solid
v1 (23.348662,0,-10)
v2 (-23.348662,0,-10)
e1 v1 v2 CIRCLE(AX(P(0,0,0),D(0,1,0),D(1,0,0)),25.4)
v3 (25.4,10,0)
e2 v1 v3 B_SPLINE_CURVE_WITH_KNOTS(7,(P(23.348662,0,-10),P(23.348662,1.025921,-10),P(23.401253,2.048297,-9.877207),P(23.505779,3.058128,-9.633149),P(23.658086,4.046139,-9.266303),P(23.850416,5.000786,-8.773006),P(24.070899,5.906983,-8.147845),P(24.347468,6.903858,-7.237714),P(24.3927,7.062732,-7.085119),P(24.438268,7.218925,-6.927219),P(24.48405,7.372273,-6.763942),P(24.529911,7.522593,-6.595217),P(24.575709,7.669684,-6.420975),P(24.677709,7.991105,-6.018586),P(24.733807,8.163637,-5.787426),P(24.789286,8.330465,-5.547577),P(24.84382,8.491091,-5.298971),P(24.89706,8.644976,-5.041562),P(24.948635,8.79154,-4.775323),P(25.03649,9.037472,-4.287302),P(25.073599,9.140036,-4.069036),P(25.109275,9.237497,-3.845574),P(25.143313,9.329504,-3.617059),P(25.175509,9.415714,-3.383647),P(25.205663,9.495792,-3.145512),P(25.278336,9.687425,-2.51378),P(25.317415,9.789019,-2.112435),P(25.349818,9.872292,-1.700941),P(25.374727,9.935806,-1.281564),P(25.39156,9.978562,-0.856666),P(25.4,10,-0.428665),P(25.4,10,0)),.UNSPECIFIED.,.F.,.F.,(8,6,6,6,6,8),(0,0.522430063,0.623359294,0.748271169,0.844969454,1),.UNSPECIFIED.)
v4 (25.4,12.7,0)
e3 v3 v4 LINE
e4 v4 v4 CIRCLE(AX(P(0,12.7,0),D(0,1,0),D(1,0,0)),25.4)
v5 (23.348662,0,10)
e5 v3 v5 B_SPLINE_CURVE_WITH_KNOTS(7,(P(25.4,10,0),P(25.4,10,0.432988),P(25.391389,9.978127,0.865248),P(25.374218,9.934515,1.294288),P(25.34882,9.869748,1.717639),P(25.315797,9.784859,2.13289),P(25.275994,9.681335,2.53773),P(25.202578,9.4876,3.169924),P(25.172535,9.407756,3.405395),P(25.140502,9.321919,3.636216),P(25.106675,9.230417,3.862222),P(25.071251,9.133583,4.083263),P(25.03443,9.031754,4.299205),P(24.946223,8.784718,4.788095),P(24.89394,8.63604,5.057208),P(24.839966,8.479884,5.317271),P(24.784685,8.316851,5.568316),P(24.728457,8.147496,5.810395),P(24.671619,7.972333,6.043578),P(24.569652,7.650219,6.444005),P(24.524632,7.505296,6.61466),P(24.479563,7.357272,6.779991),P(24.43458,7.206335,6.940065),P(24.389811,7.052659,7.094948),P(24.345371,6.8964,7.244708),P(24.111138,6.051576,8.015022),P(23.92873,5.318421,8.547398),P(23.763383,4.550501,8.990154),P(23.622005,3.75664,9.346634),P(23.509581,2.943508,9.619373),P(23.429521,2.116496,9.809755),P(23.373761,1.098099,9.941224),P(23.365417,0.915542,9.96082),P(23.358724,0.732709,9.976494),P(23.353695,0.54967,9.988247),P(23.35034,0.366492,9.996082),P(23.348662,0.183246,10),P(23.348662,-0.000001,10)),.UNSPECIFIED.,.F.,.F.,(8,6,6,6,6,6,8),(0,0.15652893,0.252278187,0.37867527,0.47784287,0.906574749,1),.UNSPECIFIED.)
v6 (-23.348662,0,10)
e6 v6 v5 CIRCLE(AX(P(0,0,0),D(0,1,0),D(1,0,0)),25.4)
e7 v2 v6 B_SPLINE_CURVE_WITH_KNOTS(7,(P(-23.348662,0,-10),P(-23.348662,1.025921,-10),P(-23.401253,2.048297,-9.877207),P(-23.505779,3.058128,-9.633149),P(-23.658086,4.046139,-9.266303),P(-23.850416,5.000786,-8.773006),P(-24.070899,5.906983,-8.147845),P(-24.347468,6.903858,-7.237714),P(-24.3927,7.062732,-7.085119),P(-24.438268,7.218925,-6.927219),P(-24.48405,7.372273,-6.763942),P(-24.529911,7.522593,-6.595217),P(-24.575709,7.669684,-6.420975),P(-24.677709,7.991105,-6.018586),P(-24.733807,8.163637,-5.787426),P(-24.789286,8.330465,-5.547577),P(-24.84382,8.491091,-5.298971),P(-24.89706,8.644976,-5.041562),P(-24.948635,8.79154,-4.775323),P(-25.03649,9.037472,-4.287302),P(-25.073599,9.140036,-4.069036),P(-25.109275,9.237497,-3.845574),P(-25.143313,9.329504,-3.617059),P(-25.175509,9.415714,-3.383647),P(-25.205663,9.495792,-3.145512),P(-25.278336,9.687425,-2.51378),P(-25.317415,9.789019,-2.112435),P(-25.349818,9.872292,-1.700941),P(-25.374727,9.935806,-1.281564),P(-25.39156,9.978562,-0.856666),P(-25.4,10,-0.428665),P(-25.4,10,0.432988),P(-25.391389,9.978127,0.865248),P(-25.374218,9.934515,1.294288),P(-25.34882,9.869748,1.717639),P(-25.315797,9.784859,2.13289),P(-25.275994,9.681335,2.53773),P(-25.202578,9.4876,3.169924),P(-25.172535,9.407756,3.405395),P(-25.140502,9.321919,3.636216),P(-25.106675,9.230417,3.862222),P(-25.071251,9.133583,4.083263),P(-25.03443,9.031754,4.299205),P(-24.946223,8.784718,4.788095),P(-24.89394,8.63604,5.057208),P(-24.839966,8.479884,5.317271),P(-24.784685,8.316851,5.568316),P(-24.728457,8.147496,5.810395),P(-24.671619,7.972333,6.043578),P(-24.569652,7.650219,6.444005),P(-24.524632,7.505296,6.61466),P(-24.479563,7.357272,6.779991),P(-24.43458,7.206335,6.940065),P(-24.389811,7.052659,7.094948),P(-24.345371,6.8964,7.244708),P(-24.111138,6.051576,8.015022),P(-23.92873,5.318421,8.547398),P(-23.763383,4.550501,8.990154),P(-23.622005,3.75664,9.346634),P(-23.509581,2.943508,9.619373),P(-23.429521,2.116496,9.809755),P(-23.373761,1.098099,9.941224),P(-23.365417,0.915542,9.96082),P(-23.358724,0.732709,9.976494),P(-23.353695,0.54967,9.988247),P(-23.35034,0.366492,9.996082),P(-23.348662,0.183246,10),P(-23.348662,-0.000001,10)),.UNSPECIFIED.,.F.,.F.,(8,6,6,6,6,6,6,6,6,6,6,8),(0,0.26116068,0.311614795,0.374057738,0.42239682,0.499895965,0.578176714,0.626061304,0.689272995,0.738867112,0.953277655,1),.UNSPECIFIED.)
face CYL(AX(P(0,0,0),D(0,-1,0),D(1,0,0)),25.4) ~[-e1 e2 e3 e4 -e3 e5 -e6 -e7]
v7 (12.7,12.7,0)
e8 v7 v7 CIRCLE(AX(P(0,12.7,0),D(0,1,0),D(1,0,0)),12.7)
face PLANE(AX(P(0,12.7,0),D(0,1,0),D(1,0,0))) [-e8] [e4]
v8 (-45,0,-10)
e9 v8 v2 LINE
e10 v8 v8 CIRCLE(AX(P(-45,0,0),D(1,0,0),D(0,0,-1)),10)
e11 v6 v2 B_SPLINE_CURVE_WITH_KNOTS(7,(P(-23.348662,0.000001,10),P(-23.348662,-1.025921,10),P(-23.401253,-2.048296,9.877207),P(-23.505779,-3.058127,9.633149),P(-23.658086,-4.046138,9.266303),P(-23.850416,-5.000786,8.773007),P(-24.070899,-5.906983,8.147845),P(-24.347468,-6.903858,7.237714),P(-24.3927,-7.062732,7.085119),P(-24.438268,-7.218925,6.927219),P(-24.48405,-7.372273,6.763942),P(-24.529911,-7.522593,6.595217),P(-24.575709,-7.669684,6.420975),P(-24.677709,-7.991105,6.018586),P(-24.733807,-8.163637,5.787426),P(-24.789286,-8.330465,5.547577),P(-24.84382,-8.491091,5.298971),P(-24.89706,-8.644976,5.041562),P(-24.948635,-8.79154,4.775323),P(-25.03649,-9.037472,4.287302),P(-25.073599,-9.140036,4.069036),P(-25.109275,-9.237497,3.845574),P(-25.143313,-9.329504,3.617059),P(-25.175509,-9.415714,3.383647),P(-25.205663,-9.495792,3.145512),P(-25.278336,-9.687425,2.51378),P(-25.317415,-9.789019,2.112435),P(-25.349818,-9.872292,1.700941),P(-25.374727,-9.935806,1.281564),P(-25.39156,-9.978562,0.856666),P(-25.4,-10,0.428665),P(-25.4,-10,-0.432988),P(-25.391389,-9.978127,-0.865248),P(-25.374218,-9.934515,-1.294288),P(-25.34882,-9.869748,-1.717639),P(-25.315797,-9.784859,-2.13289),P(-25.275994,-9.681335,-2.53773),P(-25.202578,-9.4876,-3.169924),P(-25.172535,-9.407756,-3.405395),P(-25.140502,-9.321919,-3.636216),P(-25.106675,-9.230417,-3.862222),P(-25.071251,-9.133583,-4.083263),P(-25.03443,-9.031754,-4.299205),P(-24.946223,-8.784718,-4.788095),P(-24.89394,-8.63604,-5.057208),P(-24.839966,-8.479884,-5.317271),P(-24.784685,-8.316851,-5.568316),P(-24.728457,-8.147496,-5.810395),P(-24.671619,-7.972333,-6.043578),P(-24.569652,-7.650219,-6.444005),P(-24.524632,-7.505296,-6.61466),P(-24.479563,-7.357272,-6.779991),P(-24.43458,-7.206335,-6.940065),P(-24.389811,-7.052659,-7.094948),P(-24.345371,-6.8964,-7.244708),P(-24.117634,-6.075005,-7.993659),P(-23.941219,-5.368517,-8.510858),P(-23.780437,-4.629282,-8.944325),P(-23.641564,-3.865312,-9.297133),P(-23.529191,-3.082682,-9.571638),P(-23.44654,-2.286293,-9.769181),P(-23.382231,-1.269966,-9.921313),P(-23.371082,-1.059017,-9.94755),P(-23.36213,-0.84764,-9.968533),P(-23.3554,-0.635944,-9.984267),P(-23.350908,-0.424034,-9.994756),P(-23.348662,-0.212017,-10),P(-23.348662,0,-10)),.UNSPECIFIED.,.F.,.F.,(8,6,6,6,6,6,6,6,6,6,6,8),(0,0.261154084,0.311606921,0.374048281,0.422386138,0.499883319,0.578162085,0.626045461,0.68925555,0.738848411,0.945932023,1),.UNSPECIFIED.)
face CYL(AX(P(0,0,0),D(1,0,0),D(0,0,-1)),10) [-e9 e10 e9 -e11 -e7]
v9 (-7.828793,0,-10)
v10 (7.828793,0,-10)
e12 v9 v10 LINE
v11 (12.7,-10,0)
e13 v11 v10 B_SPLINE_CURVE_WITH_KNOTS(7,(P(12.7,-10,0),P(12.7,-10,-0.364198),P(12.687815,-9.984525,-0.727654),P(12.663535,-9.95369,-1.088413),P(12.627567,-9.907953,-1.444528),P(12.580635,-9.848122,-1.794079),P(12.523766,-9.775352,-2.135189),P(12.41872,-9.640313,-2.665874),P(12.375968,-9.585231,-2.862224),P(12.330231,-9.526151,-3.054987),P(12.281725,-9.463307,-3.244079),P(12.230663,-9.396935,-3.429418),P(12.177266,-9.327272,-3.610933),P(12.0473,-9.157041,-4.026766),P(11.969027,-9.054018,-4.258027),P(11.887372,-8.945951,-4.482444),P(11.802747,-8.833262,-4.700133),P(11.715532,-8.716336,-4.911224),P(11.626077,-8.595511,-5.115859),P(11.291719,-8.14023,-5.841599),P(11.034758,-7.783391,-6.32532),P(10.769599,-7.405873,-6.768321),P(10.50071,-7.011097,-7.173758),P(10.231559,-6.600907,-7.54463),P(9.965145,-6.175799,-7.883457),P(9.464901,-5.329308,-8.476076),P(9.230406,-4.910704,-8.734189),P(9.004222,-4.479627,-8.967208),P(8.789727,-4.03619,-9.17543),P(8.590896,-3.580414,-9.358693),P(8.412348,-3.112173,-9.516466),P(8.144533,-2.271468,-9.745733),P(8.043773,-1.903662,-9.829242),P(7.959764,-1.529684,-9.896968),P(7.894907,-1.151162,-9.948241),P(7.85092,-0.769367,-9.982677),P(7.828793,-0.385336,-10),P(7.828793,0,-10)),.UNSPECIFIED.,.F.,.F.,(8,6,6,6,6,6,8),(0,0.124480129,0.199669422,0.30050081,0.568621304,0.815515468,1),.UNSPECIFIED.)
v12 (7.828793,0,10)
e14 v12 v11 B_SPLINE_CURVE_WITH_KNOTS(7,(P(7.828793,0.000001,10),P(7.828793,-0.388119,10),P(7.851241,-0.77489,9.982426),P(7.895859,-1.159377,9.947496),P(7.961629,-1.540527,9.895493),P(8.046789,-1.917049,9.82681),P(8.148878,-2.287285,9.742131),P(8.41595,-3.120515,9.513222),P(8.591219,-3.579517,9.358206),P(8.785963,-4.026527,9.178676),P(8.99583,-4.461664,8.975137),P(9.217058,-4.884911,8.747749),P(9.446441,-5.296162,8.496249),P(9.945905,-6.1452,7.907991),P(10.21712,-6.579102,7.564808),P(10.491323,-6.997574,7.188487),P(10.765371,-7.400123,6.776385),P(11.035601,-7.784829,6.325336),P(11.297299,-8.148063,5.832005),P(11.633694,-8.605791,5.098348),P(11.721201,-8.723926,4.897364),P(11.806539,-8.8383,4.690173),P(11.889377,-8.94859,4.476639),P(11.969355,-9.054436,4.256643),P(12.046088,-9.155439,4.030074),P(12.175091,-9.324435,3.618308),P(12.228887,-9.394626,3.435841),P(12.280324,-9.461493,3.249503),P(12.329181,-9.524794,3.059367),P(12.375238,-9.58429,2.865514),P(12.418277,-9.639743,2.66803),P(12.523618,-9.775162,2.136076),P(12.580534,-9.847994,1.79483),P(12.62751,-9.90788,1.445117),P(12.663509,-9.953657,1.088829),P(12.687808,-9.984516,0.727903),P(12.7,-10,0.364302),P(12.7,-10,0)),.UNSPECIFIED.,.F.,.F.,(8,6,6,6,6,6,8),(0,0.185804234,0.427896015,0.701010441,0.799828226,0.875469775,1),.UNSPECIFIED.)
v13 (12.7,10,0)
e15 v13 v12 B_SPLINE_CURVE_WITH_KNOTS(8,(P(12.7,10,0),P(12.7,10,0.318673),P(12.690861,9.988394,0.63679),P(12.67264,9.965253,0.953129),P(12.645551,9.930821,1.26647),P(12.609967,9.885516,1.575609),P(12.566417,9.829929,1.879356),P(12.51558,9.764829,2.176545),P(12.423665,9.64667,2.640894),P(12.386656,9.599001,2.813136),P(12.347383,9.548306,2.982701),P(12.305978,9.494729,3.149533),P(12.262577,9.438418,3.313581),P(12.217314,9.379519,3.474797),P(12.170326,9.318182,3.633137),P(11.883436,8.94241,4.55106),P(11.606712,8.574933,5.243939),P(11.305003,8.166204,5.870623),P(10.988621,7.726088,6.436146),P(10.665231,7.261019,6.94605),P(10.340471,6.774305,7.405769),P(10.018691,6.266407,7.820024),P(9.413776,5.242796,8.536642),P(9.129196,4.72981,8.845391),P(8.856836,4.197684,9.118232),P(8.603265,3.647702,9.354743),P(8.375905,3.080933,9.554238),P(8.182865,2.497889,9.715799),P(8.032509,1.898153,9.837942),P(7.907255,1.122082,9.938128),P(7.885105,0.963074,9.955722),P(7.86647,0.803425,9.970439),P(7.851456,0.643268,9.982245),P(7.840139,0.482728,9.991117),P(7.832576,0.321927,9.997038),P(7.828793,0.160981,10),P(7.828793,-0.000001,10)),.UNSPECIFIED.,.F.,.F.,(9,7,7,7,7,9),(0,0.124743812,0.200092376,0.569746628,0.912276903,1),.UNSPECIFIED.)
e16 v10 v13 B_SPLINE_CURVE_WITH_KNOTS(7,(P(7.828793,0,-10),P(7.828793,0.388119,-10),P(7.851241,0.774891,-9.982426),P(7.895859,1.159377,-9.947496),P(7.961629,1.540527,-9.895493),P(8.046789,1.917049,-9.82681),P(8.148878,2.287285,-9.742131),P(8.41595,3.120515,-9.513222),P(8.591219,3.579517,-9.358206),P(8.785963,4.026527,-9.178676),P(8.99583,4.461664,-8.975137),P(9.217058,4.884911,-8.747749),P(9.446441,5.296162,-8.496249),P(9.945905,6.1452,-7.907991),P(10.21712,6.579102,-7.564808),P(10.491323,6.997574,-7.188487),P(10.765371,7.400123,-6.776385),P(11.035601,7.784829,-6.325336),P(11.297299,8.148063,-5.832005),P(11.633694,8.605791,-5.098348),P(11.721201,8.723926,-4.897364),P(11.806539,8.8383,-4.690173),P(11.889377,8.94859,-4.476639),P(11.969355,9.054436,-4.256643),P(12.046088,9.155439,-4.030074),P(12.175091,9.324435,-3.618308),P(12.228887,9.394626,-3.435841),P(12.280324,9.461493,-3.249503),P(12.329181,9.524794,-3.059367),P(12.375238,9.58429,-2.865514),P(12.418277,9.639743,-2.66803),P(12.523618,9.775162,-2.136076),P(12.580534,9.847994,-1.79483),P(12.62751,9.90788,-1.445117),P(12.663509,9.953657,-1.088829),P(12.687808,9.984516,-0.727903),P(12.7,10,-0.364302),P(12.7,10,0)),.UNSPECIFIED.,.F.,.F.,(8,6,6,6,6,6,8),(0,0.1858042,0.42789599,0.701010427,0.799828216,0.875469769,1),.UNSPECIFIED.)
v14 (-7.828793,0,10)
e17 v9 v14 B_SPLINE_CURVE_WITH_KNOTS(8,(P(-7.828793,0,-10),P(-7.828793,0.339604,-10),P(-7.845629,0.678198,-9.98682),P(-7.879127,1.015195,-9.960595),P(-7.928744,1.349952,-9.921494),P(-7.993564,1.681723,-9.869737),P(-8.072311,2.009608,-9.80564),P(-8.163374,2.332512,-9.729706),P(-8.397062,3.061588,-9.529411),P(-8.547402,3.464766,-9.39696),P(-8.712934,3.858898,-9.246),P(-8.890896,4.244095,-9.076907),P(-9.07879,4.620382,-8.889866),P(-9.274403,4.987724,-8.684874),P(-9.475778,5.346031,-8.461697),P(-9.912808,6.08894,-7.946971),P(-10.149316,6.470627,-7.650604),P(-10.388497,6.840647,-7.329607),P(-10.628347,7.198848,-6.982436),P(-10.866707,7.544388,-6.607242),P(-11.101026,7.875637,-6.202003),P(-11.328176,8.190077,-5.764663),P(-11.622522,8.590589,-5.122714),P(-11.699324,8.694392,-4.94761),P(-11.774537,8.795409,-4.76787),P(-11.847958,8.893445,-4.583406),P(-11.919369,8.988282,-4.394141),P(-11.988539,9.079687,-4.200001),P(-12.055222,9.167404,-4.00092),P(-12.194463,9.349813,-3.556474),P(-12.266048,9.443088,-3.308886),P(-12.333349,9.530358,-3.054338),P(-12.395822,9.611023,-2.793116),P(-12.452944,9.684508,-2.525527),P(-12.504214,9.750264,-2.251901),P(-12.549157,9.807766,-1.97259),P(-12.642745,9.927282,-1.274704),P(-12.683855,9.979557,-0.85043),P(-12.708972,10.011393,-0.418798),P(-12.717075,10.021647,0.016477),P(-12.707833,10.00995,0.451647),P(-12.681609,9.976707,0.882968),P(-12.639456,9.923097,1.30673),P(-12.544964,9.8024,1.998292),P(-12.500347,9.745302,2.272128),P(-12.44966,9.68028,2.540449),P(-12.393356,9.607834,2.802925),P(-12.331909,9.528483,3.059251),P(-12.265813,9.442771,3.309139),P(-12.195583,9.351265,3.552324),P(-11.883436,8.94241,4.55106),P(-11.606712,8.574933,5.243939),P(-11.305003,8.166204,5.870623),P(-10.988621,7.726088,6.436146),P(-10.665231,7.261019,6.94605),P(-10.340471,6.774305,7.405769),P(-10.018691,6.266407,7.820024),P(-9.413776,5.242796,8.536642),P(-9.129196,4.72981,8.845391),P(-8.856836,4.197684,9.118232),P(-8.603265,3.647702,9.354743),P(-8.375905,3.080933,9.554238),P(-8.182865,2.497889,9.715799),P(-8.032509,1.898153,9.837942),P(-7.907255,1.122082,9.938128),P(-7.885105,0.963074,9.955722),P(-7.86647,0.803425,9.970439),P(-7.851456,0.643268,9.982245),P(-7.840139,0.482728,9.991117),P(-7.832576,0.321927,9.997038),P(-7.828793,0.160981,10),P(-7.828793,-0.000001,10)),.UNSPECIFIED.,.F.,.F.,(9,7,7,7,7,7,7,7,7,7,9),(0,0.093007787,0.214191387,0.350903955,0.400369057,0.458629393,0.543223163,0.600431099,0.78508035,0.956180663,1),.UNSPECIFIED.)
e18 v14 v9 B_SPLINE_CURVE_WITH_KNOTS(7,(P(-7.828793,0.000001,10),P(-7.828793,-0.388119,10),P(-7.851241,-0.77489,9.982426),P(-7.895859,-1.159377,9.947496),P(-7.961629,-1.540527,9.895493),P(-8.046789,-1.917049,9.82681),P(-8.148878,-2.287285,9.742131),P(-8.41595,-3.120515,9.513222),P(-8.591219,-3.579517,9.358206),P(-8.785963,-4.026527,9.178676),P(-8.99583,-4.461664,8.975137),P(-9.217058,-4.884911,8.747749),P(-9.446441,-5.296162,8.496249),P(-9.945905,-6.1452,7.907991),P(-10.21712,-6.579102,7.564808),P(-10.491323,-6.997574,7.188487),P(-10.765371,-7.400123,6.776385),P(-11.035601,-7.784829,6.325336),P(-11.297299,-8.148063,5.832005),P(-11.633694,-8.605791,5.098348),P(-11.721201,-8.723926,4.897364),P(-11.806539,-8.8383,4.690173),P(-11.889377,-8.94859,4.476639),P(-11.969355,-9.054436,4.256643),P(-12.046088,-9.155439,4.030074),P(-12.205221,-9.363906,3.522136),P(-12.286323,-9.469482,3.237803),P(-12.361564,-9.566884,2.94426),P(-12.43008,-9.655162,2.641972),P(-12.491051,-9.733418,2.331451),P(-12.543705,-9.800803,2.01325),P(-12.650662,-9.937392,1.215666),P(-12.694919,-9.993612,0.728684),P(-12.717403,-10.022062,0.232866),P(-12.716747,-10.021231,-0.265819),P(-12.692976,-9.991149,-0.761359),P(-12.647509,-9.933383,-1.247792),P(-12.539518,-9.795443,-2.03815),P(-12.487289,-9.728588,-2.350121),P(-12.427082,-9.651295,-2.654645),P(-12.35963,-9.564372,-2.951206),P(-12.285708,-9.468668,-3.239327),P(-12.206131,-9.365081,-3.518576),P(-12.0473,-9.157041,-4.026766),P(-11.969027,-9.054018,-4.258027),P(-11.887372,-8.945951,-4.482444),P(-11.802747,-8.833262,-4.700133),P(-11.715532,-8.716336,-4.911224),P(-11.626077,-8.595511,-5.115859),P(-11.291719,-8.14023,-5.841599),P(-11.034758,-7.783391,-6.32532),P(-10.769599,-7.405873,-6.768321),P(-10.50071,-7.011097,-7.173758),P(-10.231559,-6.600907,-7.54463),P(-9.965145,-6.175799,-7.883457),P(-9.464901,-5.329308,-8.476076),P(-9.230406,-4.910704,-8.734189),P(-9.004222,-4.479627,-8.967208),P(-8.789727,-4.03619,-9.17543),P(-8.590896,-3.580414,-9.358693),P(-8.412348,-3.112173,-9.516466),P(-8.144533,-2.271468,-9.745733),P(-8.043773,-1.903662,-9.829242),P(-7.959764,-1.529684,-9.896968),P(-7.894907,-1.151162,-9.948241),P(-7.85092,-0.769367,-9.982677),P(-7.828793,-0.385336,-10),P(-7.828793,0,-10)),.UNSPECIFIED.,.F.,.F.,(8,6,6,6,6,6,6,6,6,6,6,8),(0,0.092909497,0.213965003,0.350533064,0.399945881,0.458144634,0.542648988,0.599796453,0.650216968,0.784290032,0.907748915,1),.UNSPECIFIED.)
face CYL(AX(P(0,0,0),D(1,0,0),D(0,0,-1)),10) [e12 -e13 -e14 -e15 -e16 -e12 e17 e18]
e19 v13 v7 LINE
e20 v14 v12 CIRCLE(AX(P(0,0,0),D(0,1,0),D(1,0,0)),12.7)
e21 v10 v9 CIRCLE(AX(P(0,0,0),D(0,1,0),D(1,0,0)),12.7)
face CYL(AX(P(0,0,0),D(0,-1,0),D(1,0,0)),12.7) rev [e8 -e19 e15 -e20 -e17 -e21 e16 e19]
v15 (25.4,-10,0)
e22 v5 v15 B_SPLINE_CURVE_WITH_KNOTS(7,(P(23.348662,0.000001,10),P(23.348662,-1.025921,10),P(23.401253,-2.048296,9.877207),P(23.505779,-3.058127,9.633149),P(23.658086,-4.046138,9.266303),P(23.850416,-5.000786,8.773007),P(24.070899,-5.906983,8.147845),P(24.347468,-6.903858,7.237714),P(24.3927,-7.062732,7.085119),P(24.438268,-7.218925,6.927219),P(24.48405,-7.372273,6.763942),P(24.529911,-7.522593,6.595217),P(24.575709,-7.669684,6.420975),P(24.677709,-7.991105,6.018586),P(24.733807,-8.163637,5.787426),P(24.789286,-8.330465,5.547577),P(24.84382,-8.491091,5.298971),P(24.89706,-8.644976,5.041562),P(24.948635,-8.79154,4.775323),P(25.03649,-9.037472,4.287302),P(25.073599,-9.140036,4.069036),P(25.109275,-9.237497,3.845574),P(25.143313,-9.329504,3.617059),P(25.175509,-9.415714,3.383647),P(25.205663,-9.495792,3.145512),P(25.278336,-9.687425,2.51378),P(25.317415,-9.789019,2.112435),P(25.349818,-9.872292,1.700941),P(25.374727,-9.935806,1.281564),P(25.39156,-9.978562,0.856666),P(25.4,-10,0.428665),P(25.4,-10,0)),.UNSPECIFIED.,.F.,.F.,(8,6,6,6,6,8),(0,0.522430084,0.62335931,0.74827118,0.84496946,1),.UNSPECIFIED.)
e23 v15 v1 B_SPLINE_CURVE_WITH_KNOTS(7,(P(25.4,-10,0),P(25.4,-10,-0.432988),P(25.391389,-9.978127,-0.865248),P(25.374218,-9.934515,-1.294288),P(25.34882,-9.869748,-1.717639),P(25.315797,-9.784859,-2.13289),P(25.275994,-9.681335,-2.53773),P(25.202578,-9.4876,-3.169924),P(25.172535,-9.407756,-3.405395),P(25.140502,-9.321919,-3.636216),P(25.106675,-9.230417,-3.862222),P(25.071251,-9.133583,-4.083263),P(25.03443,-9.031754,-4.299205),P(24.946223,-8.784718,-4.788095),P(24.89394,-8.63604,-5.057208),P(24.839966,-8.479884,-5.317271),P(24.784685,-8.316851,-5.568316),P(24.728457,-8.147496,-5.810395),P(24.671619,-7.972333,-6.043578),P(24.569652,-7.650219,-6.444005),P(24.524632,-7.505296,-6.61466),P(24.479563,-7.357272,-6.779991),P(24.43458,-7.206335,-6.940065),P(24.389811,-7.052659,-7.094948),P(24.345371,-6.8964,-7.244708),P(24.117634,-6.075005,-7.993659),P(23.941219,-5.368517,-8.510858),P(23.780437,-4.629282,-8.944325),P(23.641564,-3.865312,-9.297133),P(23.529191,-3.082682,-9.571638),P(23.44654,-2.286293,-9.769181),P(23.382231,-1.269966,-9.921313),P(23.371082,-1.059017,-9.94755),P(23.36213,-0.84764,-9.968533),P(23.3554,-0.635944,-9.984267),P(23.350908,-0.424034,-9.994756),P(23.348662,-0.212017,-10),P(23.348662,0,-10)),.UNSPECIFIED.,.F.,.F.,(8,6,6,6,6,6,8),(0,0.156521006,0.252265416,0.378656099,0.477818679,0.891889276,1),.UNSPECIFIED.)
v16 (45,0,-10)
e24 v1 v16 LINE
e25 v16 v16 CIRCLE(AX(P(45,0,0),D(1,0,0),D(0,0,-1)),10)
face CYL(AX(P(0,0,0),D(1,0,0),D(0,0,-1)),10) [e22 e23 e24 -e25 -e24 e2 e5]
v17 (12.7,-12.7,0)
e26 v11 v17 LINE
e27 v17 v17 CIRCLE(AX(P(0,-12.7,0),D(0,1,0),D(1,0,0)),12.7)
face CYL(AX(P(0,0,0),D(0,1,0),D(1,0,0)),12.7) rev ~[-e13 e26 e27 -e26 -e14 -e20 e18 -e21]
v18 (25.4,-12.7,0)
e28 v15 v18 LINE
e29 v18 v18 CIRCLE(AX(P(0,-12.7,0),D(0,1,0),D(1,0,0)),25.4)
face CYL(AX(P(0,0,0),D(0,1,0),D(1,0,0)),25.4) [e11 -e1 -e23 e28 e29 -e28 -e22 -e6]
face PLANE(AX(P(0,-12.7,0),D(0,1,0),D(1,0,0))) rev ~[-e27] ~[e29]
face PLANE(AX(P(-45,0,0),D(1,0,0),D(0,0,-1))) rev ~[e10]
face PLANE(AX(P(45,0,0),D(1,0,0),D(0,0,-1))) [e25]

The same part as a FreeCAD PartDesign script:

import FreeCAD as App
import Part
import Sketcher
Q = App.Units.Quantity

doc = App.newDocument("Part")
body = doc.addObject("PartDesign::Body", "Body")

sketch1 = doc.addObject("Sketcher::SketchObject", "Sketch")
body.addObject(sketch1)
sketch1.AttachmentSupport = (doc.YZ_Plane, [""])
sketch1.MapMode = "FlatFace"
sketch1.addGeometry(Part.Circle(App.Vector(0, 0, 0), App.Vector(0, 0, 1), 10), False)
sketch1.addConstraint(Sketcher.Constraint("Coincident", 0, 3, -1, 1))
sketch1.addConstraint(Sketcher.Constraint("Diameter", 0, 20.0))
pad1 = doc.addObject("PartDesign::Pad", "Pad")
body.addObject(pad1)
pad1.Profile = sketch1
pad1.Type = "TwoLengths"
pad1.Length = 45
pad1.Length2 = 45

sketch2 = doc.addObject("Sketcher::SketchObject", "Sketch001")
body.addObject(sketch2)
sketch2.AttachmentSupport = (doc.XZ_Plane, [""])
sketch2.MapMode = "FlatFace"
sketch2.addGeometry(Part.Circle(App.Vector(0, 0, 0), App.Vector(0, 0, 1), 25), False)
sketch2.addGeometry(Part.Circle(App.Vector(0, 0, 0), App.Vector(0, 0, 1), 13), False)
sketch2.addConstraint(Sketcher.Constraint("Coincident", 0, 3, -1, 1))
sketch2.addConstraint(Sketcher.Constraint("Coincident", 1, 3, -1, 1))
sketch2.addConstraint(Sketcher.Constraint("Diameter", 0, Q("2 in")))
sketch2.addConstraint(Sketcher.Constraint("Diameter", 1, Q("1 in")))
pad2 = doc.addObject("PartDesign::Pad", "Pad001")
body.addObject(pad2)
pad2.Profile = sketch2
pad2.Type = "TwoLengths"
pad2.Length = Q("0.5 in")
pad2.Length2 = Q("0.5 in")
pad2.Reversed = True

doc.recompute()
